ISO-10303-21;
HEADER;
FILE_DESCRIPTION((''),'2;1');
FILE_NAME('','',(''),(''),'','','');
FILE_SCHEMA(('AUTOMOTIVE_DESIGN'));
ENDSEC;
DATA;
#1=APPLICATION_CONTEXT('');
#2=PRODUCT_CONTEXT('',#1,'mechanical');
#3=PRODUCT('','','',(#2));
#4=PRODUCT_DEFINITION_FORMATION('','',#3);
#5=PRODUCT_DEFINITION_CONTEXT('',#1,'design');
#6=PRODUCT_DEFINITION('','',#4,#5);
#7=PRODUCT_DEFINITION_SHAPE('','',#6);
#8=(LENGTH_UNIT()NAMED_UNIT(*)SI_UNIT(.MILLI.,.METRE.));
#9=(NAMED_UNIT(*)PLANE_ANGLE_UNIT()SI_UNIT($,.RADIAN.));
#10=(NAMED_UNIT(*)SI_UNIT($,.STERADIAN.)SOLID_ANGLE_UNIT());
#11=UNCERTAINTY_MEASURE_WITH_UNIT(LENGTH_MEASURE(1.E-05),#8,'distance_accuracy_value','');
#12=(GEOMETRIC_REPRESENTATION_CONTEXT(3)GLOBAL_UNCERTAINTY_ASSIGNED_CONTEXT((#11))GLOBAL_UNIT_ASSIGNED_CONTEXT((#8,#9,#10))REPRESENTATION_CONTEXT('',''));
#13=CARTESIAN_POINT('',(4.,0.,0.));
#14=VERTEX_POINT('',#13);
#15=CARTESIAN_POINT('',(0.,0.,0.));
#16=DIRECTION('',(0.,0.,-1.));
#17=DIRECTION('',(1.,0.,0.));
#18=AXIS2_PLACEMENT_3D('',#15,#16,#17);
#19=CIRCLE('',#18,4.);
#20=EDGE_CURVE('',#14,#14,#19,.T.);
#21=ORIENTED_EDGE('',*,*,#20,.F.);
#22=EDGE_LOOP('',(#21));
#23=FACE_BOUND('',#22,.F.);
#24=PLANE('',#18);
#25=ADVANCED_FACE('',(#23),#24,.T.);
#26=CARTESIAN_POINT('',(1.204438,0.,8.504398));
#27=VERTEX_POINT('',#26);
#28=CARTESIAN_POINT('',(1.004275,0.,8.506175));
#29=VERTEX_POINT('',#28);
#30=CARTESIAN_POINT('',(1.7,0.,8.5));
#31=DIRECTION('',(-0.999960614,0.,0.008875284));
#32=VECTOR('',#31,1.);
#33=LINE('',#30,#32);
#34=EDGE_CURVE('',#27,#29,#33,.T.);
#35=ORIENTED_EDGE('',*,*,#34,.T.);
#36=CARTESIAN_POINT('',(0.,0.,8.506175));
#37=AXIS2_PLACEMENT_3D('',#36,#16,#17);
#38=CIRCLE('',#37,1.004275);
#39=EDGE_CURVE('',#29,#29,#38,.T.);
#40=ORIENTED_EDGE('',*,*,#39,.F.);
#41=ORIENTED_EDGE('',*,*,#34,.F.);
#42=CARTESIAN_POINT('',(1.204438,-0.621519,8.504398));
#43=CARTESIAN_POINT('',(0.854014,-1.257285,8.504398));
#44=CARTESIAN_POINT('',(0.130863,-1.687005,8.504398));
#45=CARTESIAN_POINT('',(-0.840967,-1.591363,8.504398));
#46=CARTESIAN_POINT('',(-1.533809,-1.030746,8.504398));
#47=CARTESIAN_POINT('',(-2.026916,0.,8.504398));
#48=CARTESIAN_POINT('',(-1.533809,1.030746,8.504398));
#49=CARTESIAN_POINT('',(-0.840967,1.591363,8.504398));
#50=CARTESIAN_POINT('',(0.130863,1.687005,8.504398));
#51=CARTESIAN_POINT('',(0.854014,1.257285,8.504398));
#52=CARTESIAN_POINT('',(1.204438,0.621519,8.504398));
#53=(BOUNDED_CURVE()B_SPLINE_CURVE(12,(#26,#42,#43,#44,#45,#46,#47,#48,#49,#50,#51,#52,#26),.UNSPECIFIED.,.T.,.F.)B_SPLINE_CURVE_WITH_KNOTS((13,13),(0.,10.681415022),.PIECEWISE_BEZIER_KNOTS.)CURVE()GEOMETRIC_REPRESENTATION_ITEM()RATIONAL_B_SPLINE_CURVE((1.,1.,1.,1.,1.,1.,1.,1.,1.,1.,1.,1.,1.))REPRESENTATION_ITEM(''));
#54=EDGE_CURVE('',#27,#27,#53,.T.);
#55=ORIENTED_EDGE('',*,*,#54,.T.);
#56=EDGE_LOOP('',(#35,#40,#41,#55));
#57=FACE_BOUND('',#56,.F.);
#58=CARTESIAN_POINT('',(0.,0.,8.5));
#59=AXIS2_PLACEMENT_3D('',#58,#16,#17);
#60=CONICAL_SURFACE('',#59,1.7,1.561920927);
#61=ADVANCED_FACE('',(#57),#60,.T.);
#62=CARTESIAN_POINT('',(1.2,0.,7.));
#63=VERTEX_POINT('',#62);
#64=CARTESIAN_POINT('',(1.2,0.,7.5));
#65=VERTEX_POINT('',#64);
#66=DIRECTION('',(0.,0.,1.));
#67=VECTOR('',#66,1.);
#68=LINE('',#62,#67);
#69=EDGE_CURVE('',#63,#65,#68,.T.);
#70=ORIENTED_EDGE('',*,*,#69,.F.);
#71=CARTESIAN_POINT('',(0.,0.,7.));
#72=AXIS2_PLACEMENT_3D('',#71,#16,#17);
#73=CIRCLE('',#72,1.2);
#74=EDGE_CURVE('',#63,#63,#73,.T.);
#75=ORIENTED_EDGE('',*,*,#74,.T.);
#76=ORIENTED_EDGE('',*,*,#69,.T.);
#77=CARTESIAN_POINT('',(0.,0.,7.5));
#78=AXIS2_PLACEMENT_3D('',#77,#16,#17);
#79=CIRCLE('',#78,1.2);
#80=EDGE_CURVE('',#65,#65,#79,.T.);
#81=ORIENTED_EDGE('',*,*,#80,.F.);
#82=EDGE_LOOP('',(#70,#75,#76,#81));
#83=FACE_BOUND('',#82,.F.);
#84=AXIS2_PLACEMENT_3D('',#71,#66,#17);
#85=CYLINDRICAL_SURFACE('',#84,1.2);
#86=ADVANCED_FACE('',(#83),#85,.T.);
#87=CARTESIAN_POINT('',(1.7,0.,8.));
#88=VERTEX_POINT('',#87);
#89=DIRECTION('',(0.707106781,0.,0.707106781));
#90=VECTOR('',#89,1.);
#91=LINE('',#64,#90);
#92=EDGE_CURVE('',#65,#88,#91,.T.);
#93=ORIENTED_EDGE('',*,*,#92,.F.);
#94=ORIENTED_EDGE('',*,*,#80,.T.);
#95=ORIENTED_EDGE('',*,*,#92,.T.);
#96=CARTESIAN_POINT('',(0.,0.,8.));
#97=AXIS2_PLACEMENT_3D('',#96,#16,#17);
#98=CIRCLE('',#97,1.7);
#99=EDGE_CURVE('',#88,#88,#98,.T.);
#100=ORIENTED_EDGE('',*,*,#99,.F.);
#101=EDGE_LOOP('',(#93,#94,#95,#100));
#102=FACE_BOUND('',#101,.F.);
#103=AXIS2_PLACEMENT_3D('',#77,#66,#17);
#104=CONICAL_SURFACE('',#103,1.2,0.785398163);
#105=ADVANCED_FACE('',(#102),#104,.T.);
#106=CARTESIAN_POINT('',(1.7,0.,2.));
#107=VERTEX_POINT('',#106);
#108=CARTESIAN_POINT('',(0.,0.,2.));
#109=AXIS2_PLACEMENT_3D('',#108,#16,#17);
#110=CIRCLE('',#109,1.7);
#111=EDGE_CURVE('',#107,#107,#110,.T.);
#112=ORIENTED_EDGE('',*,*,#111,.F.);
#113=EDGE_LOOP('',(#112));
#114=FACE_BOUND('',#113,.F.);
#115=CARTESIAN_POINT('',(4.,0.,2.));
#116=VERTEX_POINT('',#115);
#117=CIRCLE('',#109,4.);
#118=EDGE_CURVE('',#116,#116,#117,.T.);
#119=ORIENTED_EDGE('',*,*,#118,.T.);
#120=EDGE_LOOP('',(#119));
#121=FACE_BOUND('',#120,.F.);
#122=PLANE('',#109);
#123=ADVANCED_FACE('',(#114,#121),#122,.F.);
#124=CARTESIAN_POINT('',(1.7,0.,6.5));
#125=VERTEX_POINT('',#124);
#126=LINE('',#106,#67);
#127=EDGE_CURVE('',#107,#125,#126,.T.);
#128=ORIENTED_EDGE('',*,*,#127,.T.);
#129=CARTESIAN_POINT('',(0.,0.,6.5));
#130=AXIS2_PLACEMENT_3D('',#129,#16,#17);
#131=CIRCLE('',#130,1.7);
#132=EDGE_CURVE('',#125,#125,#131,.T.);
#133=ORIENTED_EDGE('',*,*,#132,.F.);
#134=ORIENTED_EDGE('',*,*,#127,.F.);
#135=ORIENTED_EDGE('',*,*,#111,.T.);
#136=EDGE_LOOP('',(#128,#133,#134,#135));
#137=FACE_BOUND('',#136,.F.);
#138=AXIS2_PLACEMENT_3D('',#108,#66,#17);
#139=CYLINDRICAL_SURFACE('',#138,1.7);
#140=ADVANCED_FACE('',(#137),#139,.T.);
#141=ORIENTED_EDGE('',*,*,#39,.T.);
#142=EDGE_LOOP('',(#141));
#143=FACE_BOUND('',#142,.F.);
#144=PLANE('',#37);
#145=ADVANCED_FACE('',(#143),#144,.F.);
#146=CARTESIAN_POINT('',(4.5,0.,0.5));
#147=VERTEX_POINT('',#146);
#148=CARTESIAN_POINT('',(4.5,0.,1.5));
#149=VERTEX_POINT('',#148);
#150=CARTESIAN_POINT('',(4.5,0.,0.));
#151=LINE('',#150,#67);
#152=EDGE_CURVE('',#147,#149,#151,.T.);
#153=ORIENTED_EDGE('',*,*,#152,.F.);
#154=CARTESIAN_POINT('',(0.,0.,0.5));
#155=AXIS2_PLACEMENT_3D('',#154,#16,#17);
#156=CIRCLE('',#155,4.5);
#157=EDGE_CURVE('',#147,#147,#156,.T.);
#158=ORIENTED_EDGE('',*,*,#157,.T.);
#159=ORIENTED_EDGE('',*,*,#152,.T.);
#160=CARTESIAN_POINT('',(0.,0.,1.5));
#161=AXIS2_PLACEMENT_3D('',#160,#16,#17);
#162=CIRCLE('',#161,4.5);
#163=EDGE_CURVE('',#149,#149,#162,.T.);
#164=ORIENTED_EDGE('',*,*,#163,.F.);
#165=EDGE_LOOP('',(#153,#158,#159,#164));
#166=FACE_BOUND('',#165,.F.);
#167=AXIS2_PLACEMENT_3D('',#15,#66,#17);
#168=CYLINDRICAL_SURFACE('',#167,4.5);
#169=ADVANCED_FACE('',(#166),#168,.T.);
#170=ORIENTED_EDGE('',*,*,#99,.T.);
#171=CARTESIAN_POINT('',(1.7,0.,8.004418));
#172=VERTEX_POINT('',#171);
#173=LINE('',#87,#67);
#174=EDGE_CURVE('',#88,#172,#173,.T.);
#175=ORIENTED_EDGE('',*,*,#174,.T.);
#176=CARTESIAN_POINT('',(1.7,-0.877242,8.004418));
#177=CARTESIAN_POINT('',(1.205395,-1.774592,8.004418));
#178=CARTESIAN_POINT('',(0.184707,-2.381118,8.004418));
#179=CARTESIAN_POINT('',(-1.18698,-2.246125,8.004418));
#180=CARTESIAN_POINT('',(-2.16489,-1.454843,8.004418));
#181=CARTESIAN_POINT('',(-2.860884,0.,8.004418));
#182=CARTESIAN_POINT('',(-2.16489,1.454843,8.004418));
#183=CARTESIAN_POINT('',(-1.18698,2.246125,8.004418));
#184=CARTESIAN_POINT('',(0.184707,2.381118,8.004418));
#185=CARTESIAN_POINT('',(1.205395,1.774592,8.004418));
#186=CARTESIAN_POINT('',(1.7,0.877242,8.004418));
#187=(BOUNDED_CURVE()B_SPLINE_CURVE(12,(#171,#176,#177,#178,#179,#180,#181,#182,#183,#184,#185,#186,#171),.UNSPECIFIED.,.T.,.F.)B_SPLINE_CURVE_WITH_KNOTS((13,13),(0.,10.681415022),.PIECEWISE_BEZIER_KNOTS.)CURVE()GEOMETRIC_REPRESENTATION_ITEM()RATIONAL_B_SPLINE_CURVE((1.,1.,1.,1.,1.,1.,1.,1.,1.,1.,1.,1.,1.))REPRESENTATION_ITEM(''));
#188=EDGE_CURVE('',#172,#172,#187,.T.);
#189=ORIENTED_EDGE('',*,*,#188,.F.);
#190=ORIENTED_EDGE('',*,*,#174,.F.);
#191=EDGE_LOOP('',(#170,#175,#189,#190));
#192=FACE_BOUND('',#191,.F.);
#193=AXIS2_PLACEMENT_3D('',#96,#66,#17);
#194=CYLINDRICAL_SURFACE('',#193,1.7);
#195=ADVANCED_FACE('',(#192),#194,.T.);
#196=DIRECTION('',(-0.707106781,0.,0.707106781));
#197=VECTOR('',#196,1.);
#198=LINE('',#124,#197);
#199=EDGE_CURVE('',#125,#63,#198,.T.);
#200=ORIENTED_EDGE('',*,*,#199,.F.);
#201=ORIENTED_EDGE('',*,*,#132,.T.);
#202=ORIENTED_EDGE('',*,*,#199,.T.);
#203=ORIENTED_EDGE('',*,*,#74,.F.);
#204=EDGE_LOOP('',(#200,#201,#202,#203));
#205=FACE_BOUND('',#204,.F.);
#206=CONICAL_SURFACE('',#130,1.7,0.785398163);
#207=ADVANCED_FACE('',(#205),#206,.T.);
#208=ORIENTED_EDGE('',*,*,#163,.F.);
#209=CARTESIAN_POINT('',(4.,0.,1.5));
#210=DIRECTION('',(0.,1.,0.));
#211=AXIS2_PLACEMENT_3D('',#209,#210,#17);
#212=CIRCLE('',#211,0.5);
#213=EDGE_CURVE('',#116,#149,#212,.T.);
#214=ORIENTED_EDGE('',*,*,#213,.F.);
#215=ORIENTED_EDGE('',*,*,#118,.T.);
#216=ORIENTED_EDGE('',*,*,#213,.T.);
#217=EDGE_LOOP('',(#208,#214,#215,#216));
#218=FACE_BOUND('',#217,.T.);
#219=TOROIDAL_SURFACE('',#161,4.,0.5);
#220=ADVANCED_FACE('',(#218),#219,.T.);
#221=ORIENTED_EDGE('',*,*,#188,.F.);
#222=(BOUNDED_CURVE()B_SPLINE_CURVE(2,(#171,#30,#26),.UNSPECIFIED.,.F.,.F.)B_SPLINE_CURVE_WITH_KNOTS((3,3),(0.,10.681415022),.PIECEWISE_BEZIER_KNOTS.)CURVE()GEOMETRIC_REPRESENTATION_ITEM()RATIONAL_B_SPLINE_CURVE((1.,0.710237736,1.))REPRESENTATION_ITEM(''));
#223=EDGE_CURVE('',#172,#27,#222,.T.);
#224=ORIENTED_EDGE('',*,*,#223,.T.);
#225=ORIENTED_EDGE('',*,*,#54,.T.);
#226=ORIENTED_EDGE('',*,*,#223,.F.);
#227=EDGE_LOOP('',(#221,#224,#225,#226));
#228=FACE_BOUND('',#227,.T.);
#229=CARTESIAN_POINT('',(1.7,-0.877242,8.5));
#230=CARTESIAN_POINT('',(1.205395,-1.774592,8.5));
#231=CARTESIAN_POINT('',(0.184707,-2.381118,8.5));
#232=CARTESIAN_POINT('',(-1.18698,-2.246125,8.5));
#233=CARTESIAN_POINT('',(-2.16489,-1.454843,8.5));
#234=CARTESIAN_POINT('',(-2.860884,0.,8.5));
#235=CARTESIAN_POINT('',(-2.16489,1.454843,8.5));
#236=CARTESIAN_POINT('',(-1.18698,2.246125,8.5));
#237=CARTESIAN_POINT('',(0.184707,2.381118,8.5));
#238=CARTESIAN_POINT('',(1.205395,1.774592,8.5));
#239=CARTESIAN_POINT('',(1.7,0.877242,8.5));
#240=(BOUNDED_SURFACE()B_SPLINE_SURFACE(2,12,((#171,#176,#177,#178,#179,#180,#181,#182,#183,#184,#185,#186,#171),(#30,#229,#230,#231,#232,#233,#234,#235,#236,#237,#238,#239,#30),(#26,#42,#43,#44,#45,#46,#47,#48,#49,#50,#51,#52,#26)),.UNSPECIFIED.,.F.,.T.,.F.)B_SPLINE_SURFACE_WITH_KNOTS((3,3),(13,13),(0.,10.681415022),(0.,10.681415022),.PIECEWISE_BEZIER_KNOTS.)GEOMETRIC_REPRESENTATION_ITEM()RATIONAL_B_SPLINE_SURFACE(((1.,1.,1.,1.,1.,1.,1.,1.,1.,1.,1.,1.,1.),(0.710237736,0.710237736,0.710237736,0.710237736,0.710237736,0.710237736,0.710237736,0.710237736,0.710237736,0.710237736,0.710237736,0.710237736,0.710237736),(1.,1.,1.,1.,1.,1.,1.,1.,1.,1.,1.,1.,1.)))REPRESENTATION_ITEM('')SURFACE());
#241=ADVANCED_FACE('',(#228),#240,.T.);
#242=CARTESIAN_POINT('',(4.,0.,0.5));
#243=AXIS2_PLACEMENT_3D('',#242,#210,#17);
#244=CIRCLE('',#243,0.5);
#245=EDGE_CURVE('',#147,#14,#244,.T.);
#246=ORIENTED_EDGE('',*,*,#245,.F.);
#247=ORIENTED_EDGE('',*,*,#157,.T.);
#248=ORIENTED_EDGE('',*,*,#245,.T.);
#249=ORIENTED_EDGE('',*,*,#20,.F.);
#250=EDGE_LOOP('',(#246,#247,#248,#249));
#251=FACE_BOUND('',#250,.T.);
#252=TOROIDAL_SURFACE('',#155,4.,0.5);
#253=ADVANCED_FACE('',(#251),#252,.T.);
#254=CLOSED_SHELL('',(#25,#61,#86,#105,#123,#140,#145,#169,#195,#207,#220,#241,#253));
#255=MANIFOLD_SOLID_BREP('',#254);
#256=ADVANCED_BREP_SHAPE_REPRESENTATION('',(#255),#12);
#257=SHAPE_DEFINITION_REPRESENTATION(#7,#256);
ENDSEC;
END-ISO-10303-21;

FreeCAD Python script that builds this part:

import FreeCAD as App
import Part
import Sketcher
from FreeCAD import Vector
Q = App.Units.Quantity


def edges_at(feature, points):
    """Names of the edges that pass closest to the given points."""
    edges = feature.Shape.Edges
    near = lambda p: min(range(len(edges)), key=lambda i: edges[i].distToShape(Part.Vertex(*p))[0])
    return sorted({f"Edge{near(p) + 1}" for p in points})


def add_polygon(sketch, points):
    """Adds a closed chain of lines whose ends are joined by coincident constraints."""
    first, n = sketch.GeometryCount, len(points)
    for a, b in zip(points, points[1:] + points[:1]):
        sketch.addGeometry(Part.LineSegment(App.Vector(*a, 0), App.Vector(*b, 0)), False)
    for i in range(n):
        sketch.addConstraint(Sketcher.Constraint("Coincident", first + i, 2, first + (i + 1) % n, 1))

doc = App.newDocument("Part")
params = doc.addObject("Spreadsheet::Sheet", "Params")
for row, (alias, value) in enumerate([
    ("sketch1_height", "2 mm"),
    ("sketch1_width", "4.5 mm"),
    ("sketch1_width2", "2.8 mm"),
    ("sketch1_height2", "0.5 mm"),
    ("revolution_angle", "360 deg"),
    ("fillet_radius", "0.5 mm"),
    ("fillet2_radius", "0.5 mm"),
], start=1):
    params.set(f"A{row}", alias)
    params.set(f"B{row}", "=" + value)
    params.setAlias(f"B{row}", alias)

body = doc.addObject("PartDesign::Body", "Body")

sketch1 = body.newObject("Sketcher::SketchObject", "Sketch")
sketch1.AttachmentSupport = (doc.getObject("XZ_Plane"), [""])
sketch1.MapMode = "FlatFace"
add_polygon(sketch1, [(0, 8.506175), (0, 0), (4.5, 0), (4.5, 2), (1.7, 2), (1.7, 6.5), (1.2, 7), (1.2, 7.5), (1.7, 8), (1.7, 8.5), (1.004275, 8.506175)])
sketch1.addConstraint([
    Sketcher.Constraint("Vertical", 0),
    Sketcher.Constraint("Horizontal", 1),
    Sketcher.Constraint("Vertical", 2),
    Sketcher.Constraint("Horizontal", 3),
    Sketcher.Constraint("Vertical", 4),
    Sketcher.Constraint("Vertical", 6),
    Sketcher.Constraint("Vertical", 8),
    Sketcher.Constraint("Horizontal", 10),
    Sketcher.Constraint("Coincident", 0, 2, -1, 1),
    Sketcher.Constraint("Perpendicular", 5, 7),
    Sketcher.Constraint("Vertical", 4, 2, 7, 2),
    Sketcher.Constraint("Equal", 1, 4),
    Sketcher.Constraint("Equal", 6, 8),
    Sketcher.Constraint("Equal", 5, 7),
    Sketcher.Constraint("DistanceY", 2, 1, 2, 2, Q("2 mm")),
    Sketcher.Constraint("DistanceX", 1, 1, 1, 2, Q("4.5 mm")),
    Sketcher.Constraint("DistanceX", 3, 2, 3, 1, Q("2.8 mm")),
    Sketcher.Constraint("DistanceY", 6, 1, 6, 2, Q("0.5 mm")),
    Sketcher.Constraint("DistanceY", -1, 1, 5, 2, Q("7 mm")),
    Sketcher.Constraint("DistanceX", 10, 2, 10, 1, Q("1.004275 mm")),
    Sketcher.Constraint("DistanceY", 0, 2, 0, 1, Q("8.506175 mm")),
])
sketch1.setExpression("Constraints[25]", "Params.sketch1_height")
sketch1.setExpression("Constraints[26]", "Params.sketch1_width")
sketch1.setExpression("Constraints[27]", "Params.sketch1_width2")
sketch1.setExpression("Constraints[28]", "Params.sketch1_height2")
revolution = body.newObject("PartDesign::Revolution", "Revolution")
revolution.Profile = sketch1
revolution.ReferenceAxis = (sketch1, ["V_Axis"])
revolution.setExpression("Angle", "Params.revolution_angle")
doc.recompute()

fillet = body.newObject("PartDesign::Fillet", "Fillet")
fillet.Base = (revolution, edges_at(revolution, [(-1.7, 0, 8.5)]))
fillet.setExpression("Radius", "Params.fillet_radius")
doc.recompute()

fillet2 = body.newObject("PartDesign::Fillet", "Fillet001")
fillet2.Base = (fillet, edges_at(fillet, [(-4.5, 0, 0), (-4.5, 0, 2)]))
fillet2.setExpression("Radius", "Params.fillet2_radius")

doc.recompute()
